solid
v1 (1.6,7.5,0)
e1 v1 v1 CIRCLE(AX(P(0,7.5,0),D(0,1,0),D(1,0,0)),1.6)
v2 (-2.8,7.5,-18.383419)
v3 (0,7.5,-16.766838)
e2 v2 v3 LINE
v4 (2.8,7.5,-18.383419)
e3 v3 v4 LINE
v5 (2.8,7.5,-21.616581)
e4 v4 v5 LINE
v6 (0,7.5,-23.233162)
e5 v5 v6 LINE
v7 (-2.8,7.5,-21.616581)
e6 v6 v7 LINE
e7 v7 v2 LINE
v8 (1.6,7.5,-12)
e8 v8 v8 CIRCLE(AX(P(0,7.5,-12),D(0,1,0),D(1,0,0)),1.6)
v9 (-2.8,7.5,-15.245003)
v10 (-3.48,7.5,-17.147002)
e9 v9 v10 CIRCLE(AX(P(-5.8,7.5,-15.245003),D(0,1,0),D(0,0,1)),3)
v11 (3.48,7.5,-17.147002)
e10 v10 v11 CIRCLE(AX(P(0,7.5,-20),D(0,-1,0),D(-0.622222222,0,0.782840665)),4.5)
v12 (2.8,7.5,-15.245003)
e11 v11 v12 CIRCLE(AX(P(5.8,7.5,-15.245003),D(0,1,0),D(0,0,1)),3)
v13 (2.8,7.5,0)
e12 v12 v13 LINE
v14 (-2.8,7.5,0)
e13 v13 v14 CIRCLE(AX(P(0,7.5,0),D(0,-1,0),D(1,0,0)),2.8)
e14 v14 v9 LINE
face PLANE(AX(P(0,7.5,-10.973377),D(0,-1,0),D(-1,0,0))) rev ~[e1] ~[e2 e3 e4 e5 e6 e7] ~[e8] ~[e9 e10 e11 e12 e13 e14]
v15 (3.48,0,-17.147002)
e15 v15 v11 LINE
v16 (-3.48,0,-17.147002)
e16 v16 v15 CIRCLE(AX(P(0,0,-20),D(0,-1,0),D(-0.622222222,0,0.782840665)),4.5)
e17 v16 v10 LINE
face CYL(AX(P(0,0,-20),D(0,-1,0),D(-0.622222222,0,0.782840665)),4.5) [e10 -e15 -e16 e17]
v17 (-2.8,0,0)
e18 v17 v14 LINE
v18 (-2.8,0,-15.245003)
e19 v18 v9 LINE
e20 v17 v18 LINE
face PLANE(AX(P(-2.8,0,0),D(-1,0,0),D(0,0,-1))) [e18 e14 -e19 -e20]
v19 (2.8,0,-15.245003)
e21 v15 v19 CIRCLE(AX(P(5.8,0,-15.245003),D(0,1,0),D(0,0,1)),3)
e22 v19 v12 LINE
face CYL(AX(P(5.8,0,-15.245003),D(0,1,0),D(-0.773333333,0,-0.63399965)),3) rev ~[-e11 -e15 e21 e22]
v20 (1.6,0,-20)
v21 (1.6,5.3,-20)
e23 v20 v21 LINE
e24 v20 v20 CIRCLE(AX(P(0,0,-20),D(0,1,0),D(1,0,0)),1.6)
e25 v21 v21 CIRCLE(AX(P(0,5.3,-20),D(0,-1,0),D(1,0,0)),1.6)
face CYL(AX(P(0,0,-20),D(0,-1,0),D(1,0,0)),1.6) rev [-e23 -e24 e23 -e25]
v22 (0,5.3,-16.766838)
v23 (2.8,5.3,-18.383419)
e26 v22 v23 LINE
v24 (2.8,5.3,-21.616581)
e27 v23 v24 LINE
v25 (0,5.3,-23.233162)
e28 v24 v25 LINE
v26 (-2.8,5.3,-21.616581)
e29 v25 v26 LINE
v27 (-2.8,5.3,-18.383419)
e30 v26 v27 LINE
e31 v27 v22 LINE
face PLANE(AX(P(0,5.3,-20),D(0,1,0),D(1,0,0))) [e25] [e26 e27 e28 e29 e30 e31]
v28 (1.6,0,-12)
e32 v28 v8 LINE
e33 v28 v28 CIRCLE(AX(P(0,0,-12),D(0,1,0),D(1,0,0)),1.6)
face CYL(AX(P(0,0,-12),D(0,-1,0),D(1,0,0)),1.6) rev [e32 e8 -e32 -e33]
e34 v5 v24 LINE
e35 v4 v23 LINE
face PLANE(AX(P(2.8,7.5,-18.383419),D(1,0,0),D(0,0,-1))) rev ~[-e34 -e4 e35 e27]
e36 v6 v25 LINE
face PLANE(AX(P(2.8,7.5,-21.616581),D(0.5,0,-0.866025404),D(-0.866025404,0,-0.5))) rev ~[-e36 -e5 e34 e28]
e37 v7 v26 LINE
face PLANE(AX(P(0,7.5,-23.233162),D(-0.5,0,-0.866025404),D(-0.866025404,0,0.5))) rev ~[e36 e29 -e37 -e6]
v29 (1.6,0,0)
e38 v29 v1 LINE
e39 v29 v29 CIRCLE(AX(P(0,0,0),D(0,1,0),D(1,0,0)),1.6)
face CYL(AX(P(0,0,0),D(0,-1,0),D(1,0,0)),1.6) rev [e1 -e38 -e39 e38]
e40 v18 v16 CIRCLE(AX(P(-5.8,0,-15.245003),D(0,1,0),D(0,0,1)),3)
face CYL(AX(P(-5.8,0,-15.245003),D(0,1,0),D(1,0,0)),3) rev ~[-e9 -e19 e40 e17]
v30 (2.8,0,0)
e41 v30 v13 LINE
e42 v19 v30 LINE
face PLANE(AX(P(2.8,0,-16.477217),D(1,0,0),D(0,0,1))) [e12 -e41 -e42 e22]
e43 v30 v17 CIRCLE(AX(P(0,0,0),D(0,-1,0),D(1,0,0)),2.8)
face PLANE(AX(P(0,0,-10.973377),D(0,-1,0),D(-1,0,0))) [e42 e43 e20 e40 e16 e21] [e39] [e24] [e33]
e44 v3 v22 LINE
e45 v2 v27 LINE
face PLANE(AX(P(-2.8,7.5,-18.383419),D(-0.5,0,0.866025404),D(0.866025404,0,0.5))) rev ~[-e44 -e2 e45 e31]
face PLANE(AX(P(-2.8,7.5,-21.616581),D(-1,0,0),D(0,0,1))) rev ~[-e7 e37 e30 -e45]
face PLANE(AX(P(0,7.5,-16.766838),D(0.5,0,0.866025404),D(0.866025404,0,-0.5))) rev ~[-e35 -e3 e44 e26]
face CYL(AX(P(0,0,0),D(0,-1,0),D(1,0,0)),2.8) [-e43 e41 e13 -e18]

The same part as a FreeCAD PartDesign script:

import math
import FreeCAD as App
import Part
import Sketcher

V = App.Vector
Q = App.Units.Quantity


def edges_at(feature, points):
    """Names of the edges that pass closest to the given points."""
    edges = feature.Shape.Edges
    near = lambda p: min(range(len(edges)), key=lambda i: edges[i].distToShape(Part.Vertex(*p))[0])
    return sorted({f"Edge{near(p) + 1}" for p in points})


def add_polygon(sketch, points):
    """Adds a closed chain of lines whose ends are joined by coincident constraints."""
    first, n = sketch.GeometryCount, len(points)
    for a, b in zip(points, points[1:] + points[:1]):
        sketch.addGeometry(Part.LineSegment(App.Vector(*a, 0), App.Vector(*b, 0)), False)
    for i in range(n):
        sketch.addConstraint(Sketcher.Constraint("Coincident", first + i, 2, first + (i + 1) % n, 1))

doc = App.newDocument("Part")
body = doc.addObject("PartDesign::Body", "Body")

# Sketch on XZ plane
sketch1 = body.newObject("Sketcher::SketchObject", "Sketch")
sketch1.AttachmentSupport = (doc.getObject("XZ_Plane"), [""])
sketch1.MapMode = "FlatFace"
sketch1.addGeometry(Part.LineSegment(V(-2.8, -16.477217, 0), V(-2.8, 0, 0)), False)
sketch1.addGeometry(Part.ArcOfCircle(Part.Circle(V(0, 0, 0), V(0, 0, 1), 2.8), math.radians(0), math.radians(180)), False)
sketch1.addGeometry(Part.LineSegment(V(2.8, 0, 0), V(2.8, -16.477217, 0)), False)
sketch1.addGeometry(Part.ArcOfCircle(Part.Circle(V(0, -20, 0), V(0, 0, 1), 4.5), math.radians(128.478595), math.radians(411.521405)), False)
sketch1.addGeometry(Part.Circle(V(0, 0, 0), V(0, 0, 1), 1.6), False)
sketch1.addGeometry(Part.Circle(V(0, -12, 0), V(0, 0, 1), 1.6), False)
sketch1.addGeometry(Part.Circle(V(0, -20, 0), V(0, 0, 1), 1.6), False)
sketch1.addConstraint(Sketcher.Constraint("Tangent", 0, 2, 1, 2))
sketch1.addConstraint(Sketcher.Constraint("Tangent", 1, 1, 2, 1))
sketch1.addConstraint(Sketcher.Constraint("Coincident", 2, 2, 3, 2))
sketch1.addConstraint(Sketcher.Constraint("Coincident", 3, 1, 0, 1))
sketch1.addConstraint(Sketcher.Constraint("Vertical", 0))
sketch1.addConstraint(Sketcher.Constraint("Vertical", 2))
sketch1.addConstraint(Sketcher.Constraint("Coincident", 1, 3, -1, 1))
sketch1.addConstraint(Sketcher.Constraint("Coincident", 4, 3, -1, 1))
sketch1.addConstraint(Sketcher.Constraint("Coincident", 6, 3, 3, 3))
sketch1.addConstraint(Sketcher.Constraint("Equal", 4, 5))
sketch1.addConstraint(Sketcher.Constraint("Equal", 5, 6))
sketch1.addConstraint(Sketcher.Constraint("PointOnObject", 3, 3, -2))
sketch1.addConstraint(Sketcher.Constraint("PointOnObject", 5, 3, -2))
sketch1.addConstraint(Sketcher.Constraint("Diameter", 4, 3.2))
sketch1.addConstraint(Sketcher.Constraint("Radius", 1, 2.8))
sketch1.addConstraint(Sketcher.Constraint("Radius", 3, 4.5))
sketch1.addConstraint(Sketcher.Constraint("DistanceY", 3, 3, -1, 1, 20.0))
sketch1.addConstraint(Sketcher.Constraint("DistanceY", 5, 3, -1, 1, 12.0))
pad1 = body.newObject("PartDesign::Pad", "Pad")
pad1.Profile = sketch1
pad1.Length = 7.5
pad1.Reversed = True

# Sketch on XZ plane
sketch2 = body.newObject("Sketcher::SketchObject", "Sketch001")
sketch2.AttachmentSupport = (doc.getObject("XZ_Plane"), [""])
sketch2.MapMode = "FlatFace"
sketch2.AttachmentOffset = App.Placement(V(0, 0, -7.5), App.Rotation())
add_polygon(sketch2, [(0, -23.233162), (-2.8, -21.616581), (-2.8, -18.383419), (0, -16.766838), (2.8, -18.383419), (2.8, -21.616581)])  # lines 0-5
sketch2.addConstraint(Sketcher.Constraint("Vertical", 1))
sketch2.addConstraint(Sketcher.Constraint("Vertical", 4))
sketch2.addConstraint(Sketcher.Constraint("Symmetric", 1, 2, 3, 2, -2))
sketch2.addConstraint(Sketcher.Constraint("PointOnObject", 2, 2, -2))
sketch2.addConstraint(Sketcher.Constraint("PointOnObject", 5, 2, -2))
sketch2.addConstraint(Sketcher.Constraint("Parallel", 0, 3))
sketch2.addConstraint(Sketcher.Constraint("Parallel", 2, 5))
sketch2.addConstraint(Sketcher.Constraint("Angle", 0, Q("150 deg")))
sketch2.addConstraint(Sketcher.Constraint("DistanceX", 0, 2, -1, 1, 2.8))
sketch2.addConstraint(Sketcher.Constraint("DistanceY", 1, 1, 1, 2, 3.233162))
sketch2.addConstraint(Sketcher.Constraint("DistanceY", 0, 2, -1, 1, 21.616581))
pocket1 = body.newObject("PartDesign::Pocket", "Pocket")
pocket1.Profile = sketch2
pocket1.Length = 2.2
pocket1.Reversed = True
doc.recompute()

fillet = body.newObject("PartDesign::Fillet", "Fillet")
fillet.Base = (pocket1, edges_at(pocket1, [(-2.8, 3.75, -16.477), (2.8, 3.75, -16.477)]))
fillet.Radius = 3

doc.recompute()
